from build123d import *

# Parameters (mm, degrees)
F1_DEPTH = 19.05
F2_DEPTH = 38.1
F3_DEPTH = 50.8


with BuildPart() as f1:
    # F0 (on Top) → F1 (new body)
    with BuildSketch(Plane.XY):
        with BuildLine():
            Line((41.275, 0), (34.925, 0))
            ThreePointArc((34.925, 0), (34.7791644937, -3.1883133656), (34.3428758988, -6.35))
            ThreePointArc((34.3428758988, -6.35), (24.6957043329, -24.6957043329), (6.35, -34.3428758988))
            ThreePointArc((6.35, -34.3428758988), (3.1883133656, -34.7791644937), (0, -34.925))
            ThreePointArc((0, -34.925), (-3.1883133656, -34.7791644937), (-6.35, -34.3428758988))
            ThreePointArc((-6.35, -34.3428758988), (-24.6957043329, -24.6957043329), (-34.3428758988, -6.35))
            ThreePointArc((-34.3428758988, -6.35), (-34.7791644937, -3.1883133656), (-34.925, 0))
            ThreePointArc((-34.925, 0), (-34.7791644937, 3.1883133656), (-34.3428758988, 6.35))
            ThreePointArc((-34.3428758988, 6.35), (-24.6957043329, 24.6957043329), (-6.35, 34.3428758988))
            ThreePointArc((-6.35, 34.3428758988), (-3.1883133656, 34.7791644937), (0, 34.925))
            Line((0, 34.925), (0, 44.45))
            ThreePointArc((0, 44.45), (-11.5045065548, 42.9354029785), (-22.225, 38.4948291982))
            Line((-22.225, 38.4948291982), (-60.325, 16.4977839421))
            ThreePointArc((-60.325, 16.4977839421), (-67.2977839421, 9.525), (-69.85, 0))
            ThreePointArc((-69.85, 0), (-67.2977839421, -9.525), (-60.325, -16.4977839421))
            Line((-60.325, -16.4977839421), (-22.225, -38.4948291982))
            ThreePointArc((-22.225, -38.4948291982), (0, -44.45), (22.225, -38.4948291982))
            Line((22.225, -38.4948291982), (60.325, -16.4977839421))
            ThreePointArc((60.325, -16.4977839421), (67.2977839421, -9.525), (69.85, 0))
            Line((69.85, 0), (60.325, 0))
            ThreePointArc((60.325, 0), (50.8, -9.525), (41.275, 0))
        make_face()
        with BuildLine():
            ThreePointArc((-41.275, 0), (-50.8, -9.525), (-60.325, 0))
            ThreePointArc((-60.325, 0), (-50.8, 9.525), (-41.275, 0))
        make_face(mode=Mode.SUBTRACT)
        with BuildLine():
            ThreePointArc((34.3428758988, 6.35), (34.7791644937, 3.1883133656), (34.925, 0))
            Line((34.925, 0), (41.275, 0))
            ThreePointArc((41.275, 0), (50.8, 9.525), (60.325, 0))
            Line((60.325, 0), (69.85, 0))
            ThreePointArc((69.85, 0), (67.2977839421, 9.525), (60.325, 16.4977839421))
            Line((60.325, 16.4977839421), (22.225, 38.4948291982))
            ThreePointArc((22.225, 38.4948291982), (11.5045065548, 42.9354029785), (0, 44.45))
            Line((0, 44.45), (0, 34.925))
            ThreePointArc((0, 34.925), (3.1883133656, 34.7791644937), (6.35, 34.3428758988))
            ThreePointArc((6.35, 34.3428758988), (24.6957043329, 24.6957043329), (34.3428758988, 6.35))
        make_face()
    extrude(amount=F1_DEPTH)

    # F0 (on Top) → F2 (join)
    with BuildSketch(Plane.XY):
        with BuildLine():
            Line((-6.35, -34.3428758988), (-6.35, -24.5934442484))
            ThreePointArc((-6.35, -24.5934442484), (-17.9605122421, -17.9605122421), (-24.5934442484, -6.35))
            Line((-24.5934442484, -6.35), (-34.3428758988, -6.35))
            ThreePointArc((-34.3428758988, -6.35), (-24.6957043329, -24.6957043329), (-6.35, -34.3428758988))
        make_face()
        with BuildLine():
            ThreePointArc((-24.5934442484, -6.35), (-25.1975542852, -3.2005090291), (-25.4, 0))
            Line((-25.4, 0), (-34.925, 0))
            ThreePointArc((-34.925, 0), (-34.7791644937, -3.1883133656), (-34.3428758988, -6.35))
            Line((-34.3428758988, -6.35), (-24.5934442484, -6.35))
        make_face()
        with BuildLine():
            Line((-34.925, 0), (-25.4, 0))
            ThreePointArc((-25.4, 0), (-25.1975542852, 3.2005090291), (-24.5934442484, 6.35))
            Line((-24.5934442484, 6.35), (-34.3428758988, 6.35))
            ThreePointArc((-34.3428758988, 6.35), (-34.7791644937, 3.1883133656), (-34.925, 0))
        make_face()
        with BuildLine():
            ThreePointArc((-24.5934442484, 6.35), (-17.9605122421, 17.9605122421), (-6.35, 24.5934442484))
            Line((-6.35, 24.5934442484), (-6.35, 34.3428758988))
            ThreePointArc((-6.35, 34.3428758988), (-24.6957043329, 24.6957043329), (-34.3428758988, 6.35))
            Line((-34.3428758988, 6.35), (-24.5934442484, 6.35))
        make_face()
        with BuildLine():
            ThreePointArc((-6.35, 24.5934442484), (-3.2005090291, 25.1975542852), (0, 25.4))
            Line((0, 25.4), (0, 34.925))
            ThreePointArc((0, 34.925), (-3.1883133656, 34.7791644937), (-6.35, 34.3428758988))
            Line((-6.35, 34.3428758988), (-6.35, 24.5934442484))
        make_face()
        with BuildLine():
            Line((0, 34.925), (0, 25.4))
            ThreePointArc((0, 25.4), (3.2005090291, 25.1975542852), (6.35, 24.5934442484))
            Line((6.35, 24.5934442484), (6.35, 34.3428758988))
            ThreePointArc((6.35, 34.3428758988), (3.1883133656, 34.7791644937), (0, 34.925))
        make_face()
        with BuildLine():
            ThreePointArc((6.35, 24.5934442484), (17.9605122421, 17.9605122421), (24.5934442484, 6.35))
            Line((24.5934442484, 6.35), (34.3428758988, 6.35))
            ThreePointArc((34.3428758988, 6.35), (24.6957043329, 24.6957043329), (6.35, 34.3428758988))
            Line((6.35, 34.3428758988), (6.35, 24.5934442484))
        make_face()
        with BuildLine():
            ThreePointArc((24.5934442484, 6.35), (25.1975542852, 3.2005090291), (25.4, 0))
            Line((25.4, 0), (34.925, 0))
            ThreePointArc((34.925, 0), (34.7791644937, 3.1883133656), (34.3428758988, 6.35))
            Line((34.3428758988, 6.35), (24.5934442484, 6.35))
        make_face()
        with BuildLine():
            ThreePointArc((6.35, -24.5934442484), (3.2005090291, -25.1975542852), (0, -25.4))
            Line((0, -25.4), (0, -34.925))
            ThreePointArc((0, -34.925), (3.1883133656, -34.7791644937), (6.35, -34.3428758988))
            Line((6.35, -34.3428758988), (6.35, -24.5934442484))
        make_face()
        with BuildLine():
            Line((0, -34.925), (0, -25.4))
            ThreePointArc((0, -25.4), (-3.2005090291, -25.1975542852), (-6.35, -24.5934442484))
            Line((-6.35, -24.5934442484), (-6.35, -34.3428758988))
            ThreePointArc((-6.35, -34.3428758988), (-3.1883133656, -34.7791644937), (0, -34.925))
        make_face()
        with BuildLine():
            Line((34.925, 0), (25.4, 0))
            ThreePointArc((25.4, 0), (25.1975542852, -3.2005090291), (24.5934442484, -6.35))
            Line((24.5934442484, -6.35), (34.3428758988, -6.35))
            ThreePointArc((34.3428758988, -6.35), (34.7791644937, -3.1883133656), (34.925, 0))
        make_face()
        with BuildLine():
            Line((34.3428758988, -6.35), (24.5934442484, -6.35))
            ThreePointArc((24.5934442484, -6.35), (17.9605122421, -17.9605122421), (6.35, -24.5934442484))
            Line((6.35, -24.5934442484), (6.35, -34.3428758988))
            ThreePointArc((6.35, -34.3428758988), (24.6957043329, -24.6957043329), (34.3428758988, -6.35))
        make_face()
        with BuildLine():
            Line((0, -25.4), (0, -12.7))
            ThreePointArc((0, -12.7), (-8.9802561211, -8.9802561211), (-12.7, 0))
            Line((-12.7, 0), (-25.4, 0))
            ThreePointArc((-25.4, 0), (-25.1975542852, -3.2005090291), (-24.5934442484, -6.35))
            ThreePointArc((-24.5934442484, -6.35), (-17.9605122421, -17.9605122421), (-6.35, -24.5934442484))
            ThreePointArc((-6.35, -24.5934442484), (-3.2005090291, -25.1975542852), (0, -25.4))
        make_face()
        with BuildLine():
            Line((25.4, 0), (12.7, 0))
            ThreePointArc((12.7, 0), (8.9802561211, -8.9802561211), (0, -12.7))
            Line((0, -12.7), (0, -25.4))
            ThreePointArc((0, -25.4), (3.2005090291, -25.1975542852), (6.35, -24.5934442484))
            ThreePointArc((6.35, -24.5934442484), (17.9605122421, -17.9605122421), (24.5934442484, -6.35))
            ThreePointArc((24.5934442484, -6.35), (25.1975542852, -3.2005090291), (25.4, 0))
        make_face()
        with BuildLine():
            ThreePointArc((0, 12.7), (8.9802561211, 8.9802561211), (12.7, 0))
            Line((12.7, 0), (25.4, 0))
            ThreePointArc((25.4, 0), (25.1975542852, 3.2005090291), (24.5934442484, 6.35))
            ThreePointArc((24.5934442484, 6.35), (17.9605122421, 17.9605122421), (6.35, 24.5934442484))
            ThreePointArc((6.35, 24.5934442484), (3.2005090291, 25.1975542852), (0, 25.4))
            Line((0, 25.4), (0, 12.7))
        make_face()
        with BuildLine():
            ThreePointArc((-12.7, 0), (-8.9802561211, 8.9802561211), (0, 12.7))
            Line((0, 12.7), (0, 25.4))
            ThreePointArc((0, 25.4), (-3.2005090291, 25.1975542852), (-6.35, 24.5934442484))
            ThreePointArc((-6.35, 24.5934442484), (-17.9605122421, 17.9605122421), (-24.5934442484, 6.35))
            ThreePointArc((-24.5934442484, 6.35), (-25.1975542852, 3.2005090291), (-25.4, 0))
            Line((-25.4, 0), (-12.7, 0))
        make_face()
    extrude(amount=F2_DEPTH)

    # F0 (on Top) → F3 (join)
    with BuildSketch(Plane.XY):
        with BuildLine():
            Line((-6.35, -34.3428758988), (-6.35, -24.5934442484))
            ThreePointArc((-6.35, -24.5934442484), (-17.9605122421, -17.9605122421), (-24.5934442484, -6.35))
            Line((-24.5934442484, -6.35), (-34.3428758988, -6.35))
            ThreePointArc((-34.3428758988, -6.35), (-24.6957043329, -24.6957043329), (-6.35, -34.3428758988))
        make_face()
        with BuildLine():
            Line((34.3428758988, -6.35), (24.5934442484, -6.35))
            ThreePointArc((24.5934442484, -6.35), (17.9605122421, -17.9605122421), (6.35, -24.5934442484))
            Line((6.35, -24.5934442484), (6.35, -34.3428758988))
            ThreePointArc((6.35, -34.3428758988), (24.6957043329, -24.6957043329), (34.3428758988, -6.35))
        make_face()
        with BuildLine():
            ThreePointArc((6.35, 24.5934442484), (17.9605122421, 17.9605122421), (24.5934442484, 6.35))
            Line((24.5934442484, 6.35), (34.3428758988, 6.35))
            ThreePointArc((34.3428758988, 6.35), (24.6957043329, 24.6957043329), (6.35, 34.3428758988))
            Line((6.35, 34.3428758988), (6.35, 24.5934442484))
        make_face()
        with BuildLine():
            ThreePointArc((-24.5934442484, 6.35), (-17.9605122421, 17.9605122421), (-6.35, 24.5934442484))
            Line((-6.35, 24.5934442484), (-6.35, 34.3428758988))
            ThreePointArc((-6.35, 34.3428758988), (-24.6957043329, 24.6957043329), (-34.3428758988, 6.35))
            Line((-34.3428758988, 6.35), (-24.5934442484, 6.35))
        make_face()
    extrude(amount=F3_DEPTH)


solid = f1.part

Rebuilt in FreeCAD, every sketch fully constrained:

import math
import FreeCAD as App
import Part
import Sketcher
Q = App.Units.Quantity

doc = App.newDocument("Part")
body = doc.addObject("PartDesign::Body", "Body")

sketch1 = body.newObject("Sketcher::SketchObject", "Sketch")
sketch1.AttachmentSupport = (doc.getObject("XY_Plane"), [""])
sketch1.MapMode = "FlatFace"
sketch1.addGeometry([
    Part.ArcOfCircle(Part.Circle(App.Vector(50.8, 0, 0), App.Vector(0, 0, 1), 19.05), math.radians(-60), math.radians(0)),
    Part.ArcOfCircle(Part.Circle(App.Vector(50.8, 0, 0), App.Vector(0, 0, 1), 19.05), math.radians(0), math.radians(60)),
    Part.LineSegment(App.Vector(60.325, 16.497784, 0), App.Vector(22.225, 38.494829, 0)),
    Part.ArcOfCircle(Part.Circle(App.Vector(0, 0, 0), App.Vector(0, 0, 1), 44.45), math.radians(60), math.radians(90)),
    Part.ArcOfCircle(Part.Circle(App.Vector(0, 0, 0), App.Vector(0, 0, 1), 44.45), math.radians(90), math.radians(120)),
    Part.LineSegment(App.Vector(-22.225, 38.494829, 0), App.Vector(-60.325, 16.497784, 0)),
    Part.ArcOfCircle(Part.Circle(App.Vector(-50.8, 0, 0), App.Vector(0, 0, 1), 19.05), math.radians(120), math.radians(180)),
    Part.ArcOfCircle(Part.Circle(App.Vector(-50.8, 0, 0), App.Vector(0, 0, 1), 19.05), math.radians(180), math.radians(240)),
    Part.LineSegment(App.Vector(-60.325, -16.497784, 0), App.Vector(-22.225, -38.494829, 0)),
    Part.ArcOfCircle(Part.Circle(App.Vector(0, 0, 0), App.Vector(0, 0, 1), 44.45), math.radians(-120), math.radians(-60)),
    Part.LineSegment(App.Vector(22.225, -38.494829, 0), App.Vector(60.325, -16.497784, 0)),
    Part.Circle(App.Vector(50.8, 0, 0), App.Vector(0, 0, 1), 9.525),
    Part.ArcOfCircle(Part.Circle(App.Vector(0, 0, 0), App.Vector(0, 0, 1), 34.925), math.radians(-10.475682), math.radians(0)),
    Part.ArcOfCircle(Part.Circle(App.Vector(0, 0, 0), App.Vector(0, 0, 1), 34.925), math.radians(-79.524318), math.radians(-10.475682)),
    Part.ArcOfCircle(Part.Circle(App.Vector(0, 0, 0), App.Vector(0, 0, 1), 34.925), math.radians(-90), math.radians(-79.524318)),
    Part.ArcOfCircle(Part.Circle(App.Vector(0, 0, 0), App.Vector(0, 0, 1), 34.925), math.radians(-100.475682), math.radians(-90)),
    Part.ArcOfCircle(Part.Circle(App.Vector(0, 0, 0), App.Vector(0, 0, 1), 34.925), math.radians(-169.524318), math.radians(-100.475682)),
    Part.ArcOfCircle(Part.Circle(App.Vector(0, 0, 0), App.Vector(0, 0, 1), 34.925), math.radians(-180), math.radians(-169.524318)),
    Part.ArcOfCircle(Part.Circle(App.Vector(0, 0, 0), App.Vector(0, 0, 1), 34.925), math.radians(169.524318), math.radians(180)),
    Part.ArcOfCircle(Part.Circle(App.Vector(0, 0, 0), App.Vector(0, 0, 1), 34.925), math.radians(100.475682), math.radians(169.524318)),
    Part.ArcOfCircle(Part.Circle(App.Vector(0, 0, 0), App.Vector(0, 0, 1), 34.925), math.radians(90), math.radians(100.475682)),
    Part.ArcOfCircle(Part.Circle(App.Vector(0, 0, 0), App.Vector(0, 0, 1), 34.925), math.radians(79.524318), math.radians(90)),
    Part.ArcOfCircle(Part.Circle(App.Vector(0, 0, 0), App.Vector(0, 0, 1), 34.925), math.radians(10.475682), math.radians(79.524318)),
    Part.ArcOfCircle(Part.Circle(App.Vector(0, 0, 0), App.Vector(0, 0, 1), 34.925), math.radians(0), math.radians(10.475682)),
    Part.Circle(App.Vector(-50.8, 0, 0), App.Vector(0, 0, 1), 9.525),
], False)
sketch1.addConstraint([
    Sketcher.Constraint("Tangent", 0, 2, 1, 1),
    Sketcher.Constraint("Tangent", 1, 2, 2, 1),
    Sketcher.Constraint("Tangent", 2, 2, 3, 1),
    Sketcher.Constraint("Tangent", 3, 2, 4, 1),
    Sketcher.Constraint("Tangent", 4, 2, 5, 1),
    Sketcher.Constraint("Tangent", 5, 2, 6, 1),
    Sketcher.Constraint("Tangent", 6, 2, 7, 1),
    Sketcher.Constraint("Tangent", 7, 2, 8, 1),
    Sketcher.Constraint("Tangent", 8, 2, 9, 1),
    Sketcher.Constraint("Tangent", 9, 2, 10, 1),
    Sketcher.Constraint("Tangent", 10, 2, 0, 1),
    Sketcher.Constraint("Tangent", 12, 1, 13, 2),
    Sketcher.Constraint("Tangent", 13, 1, 14, 2),
    Sketcher.Constraint("Tangent", 14, 1, 15, 2),
    Sketcher.Constraint("Tangent", 15, 1, 16, 2),
    Sketcher.Constraint("Tangent", 16, 1, 17, 2),
    Sketcher.Constraint("Tangent", 17, 1, 18, 2),
    Sketcher.Constraint("Tangent", 18, 1, 19, 2),
    Sketcher.Constraint("Tangent", 19, 1, 20, 2),
    Sketcher.Constraint("Tangent", 20, 1, 21, 2),
    Sketcher.Constraint("Tangent", 21, 1, 22, 2),
    Sketcher.Constraint("Tangent", 22, 1, 23, 2),
    Sketcher.Constraint("Tangent", 23, 1, 12, 2),
    Sketcher.Constraint("Coincident", 3, 3, -1, 1),
    Sketcher.Constraint("Coincident", 9, 3, -1, 1),
    Sketcher.Constraint("Coincident", 12, 3, -1, 1),
    Sketcher.Constraint("Coincident", 14, 3, -1, 1),
    Sketcher.Constraint("Coincident", 16, 3, -1, 1),
    Sketcher.Constraint("Coincident", 18, 3, -1, 1),
    Sketcher.Constraint("Coincident", 20, 3, -1, 1),
    Sketcher.Constraint("Coincident", 11, 3, 0, 3),
    Sketcher.Constraint("Coincident", 24, 3, 6, 3),
    Sketcher.Constraint("Equal", 0, 1),
    Sketcher.Constraint("Equal", 3, 4),
    Sketcher.Constraint("Equal", 1, 6),
    Sketcher.Constraint("Equal", 6, 7),
    Sketcher.Constraint("Equal", 4, 9),
    Sketcher.Constraint("Equal", 20, 21),
    Sketcher.Constraint("Equal", 11, 24),
    Sketcher.Constraint("Symmetric", 0, 3, 6, 3, -1, 1),
    Sketcher.Constraint("PointOnObject", 0, 3, -1),
    Sketcher.Constraint("PointOnObject", 0, 2, -1),
    Sketcher.Constraint("PointOnObject", 3, 2, -2),
    Sketcher.Constraint("PointOnObject", 6, 2, -1),
    Sketcher.Constraint("PointOnObject", 14, 1, -2),
    Sketcher.Constraint("PointOnObject", 17, 1, -1),
    Sketcher.Constraint("PointOnObject", 20, 1, -2),
    Sketcher.Constraint("PointOnObject", 23, 1, -1),
    Sketcher.Constraint("Horizontal", 13, 1, 15, 1),
    Sketcher.Constraint("Horizontal", 12, 1, 16, 1),
    Sketcher.Constraint("Horizontal", 19, 1, 21, 1),
    Sketcher.Constraint("Horizontal", 18, 1, 22, 1),
    Sketcher.Constraint("Vertical", 16, 1, 18, 1),
    Sketcher.Constraint("Vertical", 15, 1, 19, 1),
    Sketcher.Constraint("Diameter", 11, Q("0.75 in")),
    Sketcher.Constraint("Radius", 0, Q("0.75 in")),
    Sketcher.Constraint("Radius", 3, Q("1.75 in")),
    Sketcher.Constraint("DistanceX", -1, 1, 0, 3, Q("2 in")),
    Sketcher.Constraint("Radius", 12, Q("1.375 in")),
    Sketcher.Constraint("DistanceX", 15, 1, 13, 1, Q("0.5 in")),
    Sketcher.Constraint("DistanceY", 16, 1, 18, 1, Q("0.5 in")),
])
pad1 = body.newObject("PartDesign::Pad", "Pad")
pad1.Profile = sketch1
pad1.Length = Q("0.75 in")

sketch2 = body.newObject("Sketcher::SketchObject", "Sketch001")
sketch2.AttachmentSupport = (doc.getObject("XY_Plane"), [""])
sketch2.MapMode = "FlatFace"
sketch2.addGeometry([
    Part.ArcOfCircle(Part.Circle(App.Vector(0, 0, 0), App.Vector(0, 0, 1), 34.925), math.radians(-10.475682), math.radians(0)),
    Part.ArcOfCircle(Part.Circle(App.Vector(0, 0, 0), App.Vector(0, 0, 1), 34.925), math.radians(0), math.radians(10.475682)),
    Part.ArcOfCircle(Part.Circle(App.Vector(0, 0, 0), App.Vector(0, 0, 1), 34.925), math.radians(10.475682), math.radians(79.524318)),
    Part.ArcOfCircle(Part.Circle(App.Vector(0, 0, 0), App.Vector(0, 0, 1), 34.925), math.radians(79.524318), math.radians(90)),
    Part.ArcOfCircle(Part.Circle(App.Vector(0, 0, 0), App.Vector(0, 0, 1), 34.925), math.radians(90), math.radians(100.475682)),
    Part.ArcOfCircle(Part.Circle(App.Vector(0, 0, 0), App.Vector(0, 0, 1), 34.925), math.radians(100.475682), math.radians(169.524318)),
    Part.ArcOfCircle(Part.Circle(App.Vector(0, 0, 0), App.Vector(0, 0, 1), 34.925), math.radians(169.524318), math.radians(180)),
    Part.ArcOfCircle(Part.Circle(App.Vector(0, 0, 0), App.Vector(0, 0, 1), 34.925), math.radians(-180), math.radians(-169.524318)),
    Part.ArcOfCircle(Part.Circle(App.Vector(0, 0, 0), App.Vector(0, 0, 1), 34.925), math.radians(-169.524318), math.radians(-100.475682)),
    Part.ArcOfCircle(Part.Circle(App.Vector(0, 0, 0), App.Vector(0, 0, 1), 34.925), math.radians(-100.475682), math.radians(-90)),
    Part.ArcOfCircle(Part.Circle(App.Vector(0, 0, 0), App.Vector(0, 0, 1), 34.925), math.radians(-90), math.radians(-79.524318)),
    Part.ArcOfCircle(Part.Circle(App.Vector(0, 0, 0), App.Vector(0, 0, 1), 34.925), math.radians(-79.524318), math.radians(-10.475682)),
    Part.ArcOfCircle(Part.Circle(App.Vector(0, 0, 0), App.Vector(0, 0, 1), 12.7), math.radians(0), math.radians(90)),
    Part.ArcOfCircle(Part.Circle(App.Vector(0, 0, 0), App.Vector(0, 0, 1), 12.7), math.radians(-90), math.radians(0)),
    Part.ArcOfCircle(Part.Circle(App.Vector(0, 0, 0), App.Vector(0, 0, 1), 12.7), math.radians(180), math.radians(270)),
    Part.ArcOfCircle(Part.Circle(App.Vector(0, 0, 0), App.Vector(0, 0, 1), 12.7), math.radians(90), math.radians(180)),
], False)
sketch2.addConstraint([
    Sketcher.Constraint("Tangent", 0, 2, 1, 1),
    Sketcher.Constraint("Tangent", 1, 2, 2, 1),
    Sketcher.Constraint("Tangent", 2, 2, 3, 1),
    Sketcher.Constraint("Tangent", 3, 2, 4, 1),
    Sketcher.Constraint("Tangent", 4, 2, 5, 1),
    Sketcher.Constraint("Tangent", 5, 2, 6, 1),
    Sketcher.Constraint("Tangent", 6, 2, 7, 1),
    Sketcher.Constraint("Tangent", 7, 2, 8, 1),
    Sketcher.Constraint("Tangent", 8, 2, 9, 1),
    Sketcher.Constraint("Tangent", 9, 2, 10, 1),
    Sketcher.Constraint("Tangent", 10, 2, 11, 1),
    Sketcher.Constraint("Tangent", 11, 2, 0, 1),
    Sketcher.Constraint("Tangent", 12, 1, 13, 2),
    Sketcher.Constraint("Tangent", 13, 1, 14, 2),
    Sketcher.Constraint("Tangent", 14, 1, 15, 2),
    Sketcher.Constraint("Tangent", 15, 1, 12, 2),
    Sketcher.Constraint("Coincident", 0, 3, -1, 1),
    Sketcher.Constraint("Coincident", 2, 3, -1, 1),
    Sketcher.Constraint("Coincident", 4, 3, -1, 1),
    Sketcher.Constraint("Coincident", 6, 3, -1, 1),
    Sketcher.Constraint("Coincident", 8, 3, -1, 1),
    Sketcher.Constraint("Coincident", 12, 3, -1, 1),
    Sketcher.Constraint("Equal", 8, 9),
    Sketcher.Constraint("Equal", 12, 13),
    Sketcher.Constraint("PointOnObject", 0, 2, -1),
    Sketcher.Constraint("PointOnObject", 3, 2, -2),
    Sketcher.Constraint("PointOnObject", 6, 2, -1),
    Sketcher.Constraint("PointOnObject", 9, 2, -2),
    Sketcher.Constraint("PointOnObject", 12, 1, -1),
    Sketcher.Constraint("PointOnObject", 13, 1, -2),
    Sketcher.Constraint("PointOnObject", 14, 1, -1),
    Sketcher.Constraint("PointOnObject", 15, 1, -2),
    Sketcher.Constraint("Horizontal", 2, 2, 4, 2),
    Sketcher.Constraint("Horizontal", 1, 2, 5, 2),
    Sketcher.Constraint("Horizontal", 8, 2, 10, 2),
    Sketcher.Constraint("Horizontal", 7, 2, 11, 2),
    Sketcher.Constraint("Vertical", 5, 2, 7, 2),
    Sketcher.Constraint("Vertical", 4, 2, 8, 2),
    Sketcher.Constraint("Radius", 12, Q("0.5 in")),
    Sketcher.Constraint("Radius", 0, Q("1.375 in")),
    Sketcher.Constraint("DistanceX", 4, 2, 2, 2, Q("0.5 in")),
    Sketcher.Constraint("DistanceY", 7, 2, 5, 2, Q("0.5 in")),
])
pad2 = body.newObject("PartDesign::Pad", "Pad001")
pad2.Profile = sketch2
pad2.Length = Q("1.5 in")

sketch3 = body.newObject("Sketcher::SketchObject", "Sketch002")
sketch3.AttachmentSupport = (doc.getObject("XY_Plane"), [""])
sketch3.MapMode = "FlatFace"
sketch3.addGeometry([
    Part.LineSegment(App.Vector(-6.35, -34.342876, 0), App.Vector(-6.35, -24.593444, 0)),
    Part.ArcOfCircle(Part.Circle(App.Vector(0, 0, 0), App.Vector(0, 0, 1), 25.4), math.radians(-165.522488), math.radians(-104.477512)),
    Part.LineSegment(App.Vector(-24.593444, -6.35, 0), App.Vector(-34.342876, -6.35, 0)),
    Part.ArcOfCircle(Part.Circle(App.Vector(0, 0, 0), App.Vector(0, 0, 1), 34.925), math.radians(-169.524318), math.radians(-100.475682)),
    Part.LineSegment(App.Vector(34.342876, -6.35, 0), App.Vector(24.593444, -6.35, 0)),
    Part.ArcOfCircle(Part.Circle(App.Vector(0, 0, 0), App.Vector(0, 0, 1), 25.4), math.radians(-75.522488), math.radians(-14.477512)),
    Part.LineSegment(App.Vector(6.35, -24.593444, 0), App.Vector(6.35, -34.342876, 0)),
    Part.ArcOfCircle(Part.Circle(App.Vector(0, 0, 0), App.Vector(0, 0, 1), 34.925), math.radians(-79.524318), math.radians(-10.475682)),
    Part.ArcOfCircle(Part.Circle(App.Vector(0, 0, 0), App.Vector(0, 0, 1), 25.4), math.radians(14.477512), math.radians(75.522488)),
    Part.LineSegment(App.Vector(24.593444, 6.35, 0), App.Vector(34.342876, 6.35, 0)),
    Part.ArcOfCircle(Part.Circle(App.Vector(0, 0, 0), App.Vector(0, 0, 1), 34.925), math.radians(10.475682), math.radians(79.524318)),
    Part.LineSegment(App.Vector(6.35, 34.342876, 0), App.Vector(6.35, 24.593444, 0)),
    Part.ArcOfCircle(Part.Circle(App.Vector(0, 0, 0), App.Vector(0, 0, 1), 25.4), math.radians(104.477512), math.radians(165.522488)),
    Part.LineSegment(App.Vector(-6.35, 24.593444, 0), App.Vector(-6.35, 34.342876, 0)),
    Part.ArcOfCircle(Part.Circle(App.Vector(0, 0, 0), App.Vector(0, 0, 1), 34.925), math.radians(100.475682), math.radians(169.524318)),
    Part.LineSegment(App.Vector(-34.342876, 6.35, 0), App.Vector(-24.593444, 6.35, 0)),
], False)
sketch3.addConstraint([
    Sketcher.Constraint("Coincident", 0, 2, 1, 2),
    Sketcher.Constraint("Coincident", 1, 1, 2, 1),
    Sketcher.Constraint("Coincident", 2, 2, 3, 1),
    Sketcher.Constraint("Coincident", 3, 2, 0, 1),
    Sketcher.Constraint("Coincident", 4, 2, 5, 2),
    Sketcher.Constraint("Coincident", 5, 1, 6, 1),
    Sketcher.Constraint("Coincident", 6, 2, 7, 1),
    Sketcher.Constraint("Coincident", 7, 2, 4, 1),
    Sketcher.Constraint("Coincident", 8, 1, 9, 1),
    Sketcher.Constraint("Coincident", 9, 2, 10, 1),
    Sketcher.Constraint("Coincident", 10, 2, 11, 1),
    Sketcher.Constraint("Coincident", 11, 2, 8, 2),
    Sketcher.Constraint("Coincident", 12, 1, 13, 1),
    Sketcher.Constraint("Coincident", 13, 2, 14, 1),
    Sketcher.Constraint("Coincident", 14, 2, 15, 1),
    Sketcher.Constraint("Coincident", 15, 2, 12, 2),
    Sketcher.Constraint("Vertical", 0),
    Sketcher.Constraint("Horizontal", 2),
    Sketcher.Constraint("Horizontal", 4),
    Sketcher.Constraint("Vertical", 6),
    Sketcher.Constraint("Horizontal", 9),
    Sketcher.Constraint("Vertical", 11),
    Sketcher.Constraint("Vertical", 13),
    Sketcher.Constraint("Horizontal", 15),
    Sketcher.Constraint("Coincident", 1, 3, -1, 1),
    Sketcher.Constraint("Coincident", 3, 3, -1, 1),
    Sketcher.Constraint("Coincident", 5, 3, -1, 1),
    Sketcher.Constraint("Coincident", 7, 3, -1, 1),
    Sketcher.Constraint("Coincident", 8, 3, -1, 1),
    Sketcher.Constraint("Coincident", 10, 3, -1, 1),
    Sketcher.Constraint("Coincident", 12, 3, -1, 1),
    Sketcher.Constraint("Coincident", 14, 3, -1, 1),
    Sketcher.Constraint("Equal", 1, 5),
    Sketcher.Constraint("Equal", 3, 7),
    Sketcher.Constraint("Equal", 5, 8),
    Sketcher.Constraint("Equal", 7, 10),
    Sketcher.Constraint("Equal", 8, 12),
    Sketcher.Constraint("Equal", 10, 14),
    Sketcher.Constraint("Horizontal", 2, 2, 4, 2),
    Sketcher.Constraint("Horizontal", 0, 2, 5, 1),
    Sketcher.Constraint("Horizontal", 11, 2, 12, 1),
    Sketcher.Constraint("Horizontal", 9, 2, 14, 2),
    Sketcher.Constraint("Vertical", 4, 2, 8, 1),
    Sketcher.Constraint("Vertical", 6, 2, 10, 2),
    Sketcher.Constraint("Equal", 15, 0),
    Sketcher.Constraint("Radius", 1, Q("1 in")),
    Sketcher.Constraint("Radius", 3, Q("1.375 in")),
    Sketcher.Constraint("DistanceX", 0, 2, 5, 1, Q("0.5 in")),
])
pad3 = body.newObject("PartDesign::Pad", "Pad002")
pad3.Profile = sketch3
pad3.Length = Q("2 in")

doc.recompute()
